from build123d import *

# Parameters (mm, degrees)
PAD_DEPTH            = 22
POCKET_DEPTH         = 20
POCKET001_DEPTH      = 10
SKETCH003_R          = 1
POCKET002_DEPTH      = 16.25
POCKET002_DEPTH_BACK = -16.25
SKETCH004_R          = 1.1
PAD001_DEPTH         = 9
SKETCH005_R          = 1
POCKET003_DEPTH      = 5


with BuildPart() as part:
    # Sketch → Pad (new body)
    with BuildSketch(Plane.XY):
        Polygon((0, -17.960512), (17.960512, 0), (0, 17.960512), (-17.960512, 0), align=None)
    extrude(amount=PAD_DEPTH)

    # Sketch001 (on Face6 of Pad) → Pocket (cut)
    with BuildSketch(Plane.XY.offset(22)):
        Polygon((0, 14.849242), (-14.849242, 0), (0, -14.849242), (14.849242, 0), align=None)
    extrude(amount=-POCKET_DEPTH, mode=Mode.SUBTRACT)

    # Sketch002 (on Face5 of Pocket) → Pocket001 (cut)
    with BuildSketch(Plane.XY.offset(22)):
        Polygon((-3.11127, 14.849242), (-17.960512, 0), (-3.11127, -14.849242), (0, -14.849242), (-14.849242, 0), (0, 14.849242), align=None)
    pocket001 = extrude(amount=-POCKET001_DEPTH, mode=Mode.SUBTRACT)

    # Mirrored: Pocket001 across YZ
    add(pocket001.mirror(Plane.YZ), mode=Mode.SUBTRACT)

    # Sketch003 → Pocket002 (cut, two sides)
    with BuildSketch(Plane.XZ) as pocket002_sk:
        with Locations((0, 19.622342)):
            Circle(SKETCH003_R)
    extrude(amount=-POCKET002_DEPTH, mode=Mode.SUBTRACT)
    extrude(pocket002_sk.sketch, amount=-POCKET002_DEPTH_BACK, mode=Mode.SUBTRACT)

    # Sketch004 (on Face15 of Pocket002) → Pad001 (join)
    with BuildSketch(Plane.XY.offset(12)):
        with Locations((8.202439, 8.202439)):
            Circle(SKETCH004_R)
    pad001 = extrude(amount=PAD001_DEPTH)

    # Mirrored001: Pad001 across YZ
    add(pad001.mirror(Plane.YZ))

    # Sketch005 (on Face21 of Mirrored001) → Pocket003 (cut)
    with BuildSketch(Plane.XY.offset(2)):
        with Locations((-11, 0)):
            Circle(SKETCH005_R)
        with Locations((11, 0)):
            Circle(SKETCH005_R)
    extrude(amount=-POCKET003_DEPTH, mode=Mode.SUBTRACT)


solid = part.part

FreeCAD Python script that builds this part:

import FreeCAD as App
import Part
import Sketcher

V = App.Vector
Q = App.Units.Quantity

doc = App.newDocument("Part")
body = doc.addObject("PartDesign::Body", "Body")

sketch1 = body.newObject("Sketcher::SketchObject", "Sketch")
sketch1.AttachmentSupport = (doc.getObject("XY_Plane"), [""])
sketch1.MapMode = "FlatFace"
sketch1.addGeometry([
    Part.LineSegment(V(0, -18, 0), V(18, 0, 0)),
    Part.LineSegment(V(18, 0, 0), V(0, 18, 0)),
    Part.LineSegment(V(0, 18, 0), V(-18, 0, 0)),
    Part.LineSegment(V(-18, 0, 0), V(0, -18, 0)),
], False)
sketch1.addConstraint([
    Sketcher.Constraint("Coincident", 0, 2, 1, 1),
    Sketcher.Constraint("Coincident", 1, 2, 2, 1),
    Sketcher.Constraint("Coincident", 2, 2, 3, 1),
    Sketcher.Constraint("Coincident", 3, 2, 0, 1),
    Sketcher.Constraint("Symmetric", 0, 2, 2, 2, -1, 1),
    Sketcher.Constraint("Symmetric", 1, 2, 3, 2, -1, 1),
    Sketcher.Constraint("PointOnObject", 0, 2, -1),
    Sketcher.Constraint("PointOnObject", 1, 2, -2),
    Sketcher.Constraint("Perpendicular", 0, 1),
    Sketcher.Constraint("Distance", 0, Q("25.4 mm")),
])
pad1 = body.newObject("PartDesign::Pad", "Pad")
pad1.Profile = sketch1
pad1.Length = 22

sketch2 = body.newObject("Sketcher::SketchObject", "Sketch001")
sketch2.AttachmentSupport = (doc.getObject("XY_Plane"), [""])
sketch2.MapMode = "FlatFace"
sketch2.AttachmentOffset = App.Placement(V(0, 0, 22), App.Rotation())
sketch2.addGeometry([
    Part.LineSegment(V(0, 15, 0), V(-15, 0, 0)),
    Part.LineSegment(V(-15, 0, 0), V(0, -15, 0)),
    Part.LineSegment(V(0, -15, 0), V(15, 0, 0)),
    Part.LineSegment(V(15, 0, 0), V(0, 15, 0)),
], False)
sketch2.addConstraint([
    Sketcher.Constraint("Coincident", 0, 2, 1, 1),
    Sketcher.Constraint("Coincident", 1, 2, 2, 1),
    Sketcher.Constraint("Coincident", 2, 2, 3, 1),
    Sketcher.Constraint("Coincident", 3, 2, 0, 1),
    Sketcher.Constraint("Symmetric", 0, 2, 2, 2, -1, 1),
    Sketcher.Constraint("Symmetric", 1, 2, 3, 2, -1, 1),
    Sketcher.Constraint("PointOnObject", 0, 2, -1),
    Sketcher.Constraint("PointOnObject", 1, 2, -2),
    Sketcher.Constraint("Perpendicular", 0, 1),
    Sketcher.Constraint("Distance", 0, Q("20.999999 mm")),
])
pocket1 = body.newObject("PartDesign::Pocket", "Pocket")
pocket1.Profile = sketch2
pocket1.Length = 20

sketch3 = body.newObject("Sketcher::SketchObject", "Sketch002")
sketch3.AttachmentSupport = (doc.getObject("XY_Plane"), [""])
sketch3.MapMode = "FlatFace"
sketch3.AttachmentOffset = App.Placement(V(0, 0, 22), App.Rotation())
sketch3.addGeometry([
    Part.LineSegment(V(-3.1, 14.8, 0), V(-18, 0, 0)),
    Part.LineSegment(V(-18, 0, 0), V(-3.1, -14.8, 0)),
    Part.LineSegment(V(-3.1, -14.8, 0), V(0, -14.8, 0)),
    Part.LineSegment(V(0, -14.8, 0), V(-14.8, 0, 0)),
    Part.LineSegment(V(-14.8, 0, 0), V(0, 14.8, 0)),
    Part.LineSegment(V(0, 14.8, 0), V(-3.1, 14.8, 0)),
], False)
sketch3.addConstraint([
    Sketcher.Constraint("Coincident", 0, 2, 1, 1),
    Sketcher.Constraint("Coincident", 1, 2, 2, 1),
    Sketcher.Constraint("Coincident", 2, 2, 3, 1),
    Sketcher.Constraint("Coincident", 3, 2, 4, 1),
    Sketcher.Constraint("Coincident", 4, 2, 5, 1),
    Sketcher.Constraint("Coincident", 5, 2, 0, 1),
    Sketcher.Constraint("Horizontal", 2),
    Sketcher.Constraint("Horizontal", 5),
    Sketcher.Constraint("Symmetric", 2, 2, 4, 2, -1, 1),
    Sketcher.Constraint("PointOnObject", 0, 2, -1),
    Sketcher.Constraint("PointOnObject", 2, 2, -2),
    Sketcher.Constraint("PointOnObject", 3, 2, -1),
    Sketcher.Constraint("Perpendicular", 0, 1),
    Sketcher.Constraint("Parallel", 1, 3),
    Sketcher.Constraint("Perpendicular", 3, 4),
    Sketcher.Constraint("Distance", 0, Q("20.999999 mm")),
    Sketcher.Constraint("DistanceX", 2, 1, 2, 2, Q("3.11127 mm")),
])
pocket2 = body.newObject("PartDesign::Pocket", "Pocket001")
pocket2.Profile = sketch3
pocket2.Length = 10
doc.recompute()

mirrored = body.newObject("PartDesign::Mirrored", "Mirrored")
mirrored.Originals = [pocket2]
mirrored.MirrorPlane = (doc.getObject("YZ_Plane"), [""])
body.Tip = mirrored

sketch4 = body.newObject("Sketcher::SketchObject", "Sketch003")
sketch4.AttachmentSupport = (doc.getObject("XZ_Plane"), [""])
sketch4.MapMode = "FlatFace"
sketch4.addGeometry(Part.Circle(V(0, 19.6, 0), V(0, 0, 1), 1), False)
sketch4.addConstraint([
    Sketcher.Constraint("PointOnObject", 0, 3, -2),
    Sketcher.Constraint("Diameter", 0, Q("2 mm")),
    Sketcher.Constraint("DistanceY", -1, 1, 0, 3, Q("19.622342 mm")),
])
pocket3 = body.newObject("PartDesign::Pocket", "Pocket002")
pocket3.Profile = sketch4
pocket3.Type = "TwoLengths"
pocket3.Length = 16.25
pocket3.Length2 = 16.25

sketch5 = body.newObject("Sketcher::SketchObject", "Sketch004")
sketch5.AttachmentSupport = (doc.getObject("XY_Plane"), [""])
sketch5.MapMode = "FlatFace"
sketch5.AttachmentOffset = App.Placement(V(0, 0, 12), App.Rotation())
sketch5.addGeometry(Part.Circle(V(8.2, 8.2, 0), V(0, 0, 1), 1.1), False)
sketch5.addConstraint([
    Sketcher.Constraint("Diameter", 0, Q("2.2 mm")),
    Sketcher.Constraint("DistanceX", -1, 1, 0, 3, Q("8.202439 mm")),
    Sketcher.Constraint("DistanceY", -1, 1, 0, 3, Q("8.202439 mm")),
])
pad2 = body.newObject("PartDesign::Pad", "Pad001")
pad2.Profile = sketch5
pad2.Length = 9
doc.recompute()

mirrored2 = body.newObject("PartDesign::Mirrored", "Mirrored001")
mirrored2.Originals = [pad2]
mirrored2.MirrorPlane = (doc.getObject("YZ_Plane"), [""])
body.Tip = mirrored2

sketch6 = body.newObject("Sketcher::SketchObject", "Sketch005")
sketch6.AttachmentSupport = (doc.getObject("XY_Plane"), [""])
sketch6.MapMode = "FlatFace"
sketch6.AttachmentOffset = App.Placement(V(0, 0, 2), App.Rotation())
sketch6.addGeometry([
    Part.Circle(V(-11, 0, 0), V(0, 0, 1), 1),
    Part.Circle(V(11, 0, 0), V(0, 0, 1), 1),
], False)
sketch6.addConstraint([
    Sketcher.Constraint("Equal", 0, 1),
    Sketcher.Constraint("Symmetric", 0, 3, 1, 3, -1, 1),
    Sketcher.Constraint("PointOnObject", 0, 3, -1),
    Sketcher.Constraint("Diameter", 0, Q("2 mm")),
    Sketcher.Constraint("DistanceX", 0, 3, -1, 1, Q("11 mm")),
])
pocket4 = body.newObject("PartDesign::Pocket", "Pocket003")
pocket4.Profile = sketch6
pocket4.Length = 5

doc.recompute()
